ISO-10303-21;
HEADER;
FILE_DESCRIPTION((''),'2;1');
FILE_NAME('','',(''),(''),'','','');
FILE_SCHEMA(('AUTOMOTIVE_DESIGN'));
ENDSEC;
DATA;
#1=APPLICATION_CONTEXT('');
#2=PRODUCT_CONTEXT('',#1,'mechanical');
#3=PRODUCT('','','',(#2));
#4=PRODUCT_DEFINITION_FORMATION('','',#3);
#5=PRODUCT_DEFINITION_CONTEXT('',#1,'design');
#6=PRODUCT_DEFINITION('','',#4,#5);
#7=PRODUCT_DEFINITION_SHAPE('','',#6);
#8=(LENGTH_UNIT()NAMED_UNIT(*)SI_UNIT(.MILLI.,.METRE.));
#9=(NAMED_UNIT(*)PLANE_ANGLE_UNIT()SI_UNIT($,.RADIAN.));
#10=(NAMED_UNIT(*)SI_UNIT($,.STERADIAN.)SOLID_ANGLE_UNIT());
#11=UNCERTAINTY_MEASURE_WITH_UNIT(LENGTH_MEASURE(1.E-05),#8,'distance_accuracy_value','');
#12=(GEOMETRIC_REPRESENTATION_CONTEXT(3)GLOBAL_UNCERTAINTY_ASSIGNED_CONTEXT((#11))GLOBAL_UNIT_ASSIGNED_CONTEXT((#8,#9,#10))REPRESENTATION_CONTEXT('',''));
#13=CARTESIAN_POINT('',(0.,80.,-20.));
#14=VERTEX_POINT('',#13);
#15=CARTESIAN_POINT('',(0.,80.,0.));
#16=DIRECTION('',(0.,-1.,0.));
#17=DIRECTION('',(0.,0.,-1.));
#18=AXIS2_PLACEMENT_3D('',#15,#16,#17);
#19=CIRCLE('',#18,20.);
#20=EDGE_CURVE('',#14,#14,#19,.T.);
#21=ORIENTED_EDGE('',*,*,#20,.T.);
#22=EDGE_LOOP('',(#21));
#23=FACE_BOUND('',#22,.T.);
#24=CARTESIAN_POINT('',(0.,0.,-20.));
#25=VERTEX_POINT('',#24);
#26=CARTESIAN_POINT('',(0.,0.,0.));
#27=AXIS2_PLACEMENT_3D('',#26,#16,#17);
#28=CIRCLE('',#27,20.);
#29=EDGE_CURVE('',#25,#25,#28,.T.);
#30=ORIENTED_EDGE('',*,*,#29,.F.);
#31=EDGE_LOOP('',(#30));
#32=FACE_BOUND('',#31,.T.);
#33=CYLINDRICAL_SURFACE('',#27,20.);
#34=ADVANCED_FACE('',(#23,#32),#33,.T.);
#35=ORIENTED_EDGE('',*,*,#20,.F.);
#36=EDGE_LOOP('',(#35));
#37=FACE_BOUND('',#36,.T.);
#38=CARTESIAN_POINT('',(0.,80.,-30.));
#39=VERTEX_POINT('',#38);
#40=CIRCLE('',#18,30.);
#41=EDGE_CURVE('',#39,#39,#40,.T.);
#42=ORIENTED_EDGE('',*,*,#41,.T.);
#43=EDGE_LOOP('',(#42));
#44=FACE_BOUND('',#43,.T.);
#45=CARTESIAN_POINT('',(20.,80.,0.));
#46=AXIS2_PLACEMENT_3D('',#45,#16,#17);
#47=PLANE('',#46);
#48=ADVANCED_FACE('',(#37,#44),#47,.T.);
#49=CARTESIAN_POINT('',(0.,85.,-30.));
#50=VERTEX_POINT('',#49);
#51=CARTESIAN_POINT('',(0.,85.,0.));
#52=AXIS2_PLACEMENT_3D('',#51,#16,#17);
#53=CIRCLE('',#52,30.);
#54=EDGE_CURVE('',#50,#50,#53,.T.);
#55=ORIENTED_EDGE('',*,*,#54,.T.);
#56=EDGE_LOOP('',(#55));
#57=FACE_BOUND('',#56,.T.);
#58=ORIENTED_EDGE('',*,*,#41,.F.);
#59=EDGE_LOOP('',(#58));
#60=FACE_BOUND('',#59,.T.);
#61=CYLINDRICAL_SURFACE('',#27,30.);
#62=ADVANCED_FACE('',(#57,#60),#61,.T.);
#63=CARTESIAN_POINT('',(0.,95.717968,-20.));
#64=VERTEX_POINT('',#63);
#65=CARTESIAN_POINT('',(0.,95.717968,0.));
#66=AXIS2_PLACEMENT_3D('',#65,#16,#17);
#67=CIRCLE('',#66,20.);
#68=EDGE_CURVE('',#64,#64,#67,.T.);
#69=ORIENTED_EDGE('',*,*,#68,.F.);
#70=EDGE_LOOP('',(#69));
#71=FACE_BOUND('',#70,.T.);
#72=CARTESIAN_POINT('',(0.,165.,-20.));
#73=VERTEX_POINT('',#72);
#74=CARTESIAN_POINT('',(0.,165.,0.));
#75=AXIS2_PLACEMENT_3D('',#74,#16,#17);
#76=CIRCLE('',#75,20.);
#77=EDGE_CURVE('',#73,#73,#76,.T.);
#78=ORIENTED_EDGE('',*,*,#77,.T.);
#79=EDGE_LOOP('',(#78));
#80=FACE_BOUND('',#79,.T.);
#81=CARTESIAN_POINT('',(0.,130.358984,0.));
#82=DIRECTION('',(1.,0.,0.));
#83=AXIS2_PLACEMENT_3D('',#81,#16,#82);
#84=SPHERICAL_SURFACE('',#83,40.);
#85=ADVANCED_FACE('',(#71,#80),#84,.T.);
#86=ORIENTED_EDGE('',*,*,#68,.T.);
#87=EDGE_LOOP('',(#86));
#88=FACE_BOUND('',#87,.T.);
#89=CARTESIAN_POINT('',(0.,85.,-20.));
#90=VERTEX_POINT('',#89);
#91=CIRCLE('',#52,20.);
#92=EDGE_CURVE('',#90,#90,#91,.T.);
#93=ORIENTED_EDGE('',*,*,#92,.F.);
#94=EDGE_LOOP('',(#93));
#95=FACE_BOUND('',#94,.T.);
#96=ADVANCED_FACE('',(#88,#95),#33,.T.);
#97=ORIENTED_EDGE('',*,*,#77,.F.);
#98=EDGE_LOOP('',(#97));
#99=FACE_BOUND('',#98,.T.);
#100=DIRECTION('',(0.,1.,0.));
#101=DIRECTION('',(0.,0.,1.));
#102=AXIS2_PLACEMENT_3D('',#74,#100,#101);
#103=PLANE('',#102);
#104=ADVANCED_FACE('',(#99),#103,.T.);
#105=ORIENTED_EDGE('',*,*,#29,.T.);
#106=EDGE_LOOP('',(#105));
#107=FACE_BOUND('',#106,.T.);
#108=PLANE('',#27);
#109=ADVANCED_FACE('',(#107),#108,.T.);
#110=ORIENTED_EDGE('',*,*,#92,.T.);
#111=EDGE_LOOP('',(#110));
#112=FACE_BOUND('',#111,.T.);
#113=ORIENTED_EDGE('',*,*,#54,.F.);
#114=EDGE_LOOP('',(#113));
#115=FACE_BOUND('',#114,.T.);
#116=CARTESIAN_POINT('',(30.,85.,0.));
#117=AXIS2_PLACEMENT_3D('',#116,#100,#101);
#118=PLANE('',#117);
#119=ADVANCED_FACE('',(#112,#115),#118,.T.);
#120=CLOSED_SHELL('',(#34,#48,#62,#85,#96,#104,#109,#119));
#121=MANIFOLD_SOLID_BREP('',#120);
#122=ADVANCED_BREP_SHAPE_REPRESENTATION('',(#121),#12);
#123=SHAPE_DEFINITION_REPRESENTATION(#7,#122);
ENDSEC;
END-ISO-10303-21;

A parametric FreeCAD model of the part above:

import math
import FreeCAD as App
import Part
import Sketcher
from FreeCAD import Vector
Q = App.Units.Quantity

doc = App.newDocument("Part")
body = doc.addObject("PartDesign::Body", "Body")

sketch1 = body.newObject("Sketcher::SketchObject", "Sketch")
sketch1.AttachmentSupport = (doc.getObject("XY_Plane"), [""])
sketch1.MapMode = "FlatFace"
sketch1.addGeometry(Part.LineSegment(Vector(0, 0, 0), Vector(20, 0, 0)), False)
sketch1.addGeometry(Part.LineSegment(Vector(20, 0, 0), Vector(20, 80, 0)), False)
sketch1.addGeometry(Part.LineSegment(Vector(20, 80, 0), Vector(30, 80, 0)), False)
sketch1.addGeometry(Part.LineSegment(Vector(30, 80, 0), Vector(30, 85, 0)), False)
sketch1.addGeometry(Part.LineSegment(Vector(30, 85, 0), Vector(20, 85, 0)), False)
sketch1.addGeometry(Part.LineSegment(Vector(20, 85, 0), Vector(20, 96, 0)), False)
sketch1.addGeometry(Part.ArcOfCircle(Part.Circle(Vector(0, 130, 0), Vector(0, 0, 1), 40), math.radians(-60), math.radians(60)), False)
sketch1.addGeometry(Part.LineSegment(Vector(20, 165, 0), Vector(0, 165, 0)), False)
sketch1.addGeometry(Part.LineSegment(Vector(0, 165, 0), Vector(0, 0, 0)), False)
sketch1.addConstraint(Sketcher.Constraint("Coincident", 0, 2, 1, 1))
sketch1.addConstraint(Sketcher.Constraint("Coincident", 1, 2, 2, 1))
sketch1.addConstraint(Sketcher.Constraint("Coincident", 2, 2, 3, 1))
sketch1.addConstraint(Sketcher.Constraint("Coincident", 3, 2, 4, 1))
sketch1.addConstraint(Sketcher.Constraint("Coincident", 4, 2, 5, 1))
sketch1.addConstraint(Sketcher.Constraint("Coincident", 5, 2, 6, 1))
sketch1.addConstraint(Sketcher.Constraint("Coincident", 6, 2, 7, 1))
sketch1.addConstraint(Sketcher.Constraint("Coincident", 7, 2, 8, 1))
sketch1.addConstraint(Sketcher.Constraint("Coincident", 8, 2, 0, 1))
sketch1.addConstraint(Sketcher.Constraint("Horizontal", 0))
sketch1.addConstraint(Sketcher.Constraint("Vertical", 1))
sketch1.addConstraint(Sketcher.Constraint("Horizontal", 2))
sketch1.addConstraint(Sketcher.Constraint("Vertical", 3))
sketch1.addConstraint(Sketcher.Constraint("Horizontal", 4))
sketch1.addConstraint(Sketcher.Constraint("Vertical", 5))
sketch1.addConstraint(Sketcher.Constraint("Horizontal", 7))
sketch1.addConstraint(Sketcher.Constraint("Vertical", 8))
sketch1.addConstraint(Sketcher.Constraint("Coincident", 8, 2, -1, 1))
sketch1.addConstraint(Sketcher.Constraint("PointOnObject", 6, 3, -2))
sketch1.addConstraint(Sketcher.Constraint("Vertical", 1, 2, 4, 2))
sketch1.addConstraint(Sketcher.Constraint("Vertical", 5, 2, 6, 2))
sketch1.addConstraint(Sketcher.Constraint("Radius", 6, Q("40 mm")))
sketch1.addConstraint(Sketcher.Constraint("DistanceX", 0, 1, 0, 2, Q("20 mm")))
sketch1.addConstraint(Sketcher.Constraint("DistanceX", 2, 1, 2, 2, Q("10 mm")))
sketch1.addConstraint(Sketcher.Constraint("DistanceY", 1, 1, 1, 2, Q("80 mm")))
sketch1.addConstraint(Sketcher.Constraint("DistanceY", 3, 1, 3, 2, Q("5 mm")))
sketch1.addConstraint(Sketcher.Constraint("DistanceY", 8, 2, 8, 1, Q("165 mm")))
revolution = body.newObject("PartDesign::Revolution", "Revolution")
revolution.Profile = sketch1
revolution.ReferenceAxis = (sketch1, ["V_Axis"])
revolution.Angle = 360

doc.recompute()
